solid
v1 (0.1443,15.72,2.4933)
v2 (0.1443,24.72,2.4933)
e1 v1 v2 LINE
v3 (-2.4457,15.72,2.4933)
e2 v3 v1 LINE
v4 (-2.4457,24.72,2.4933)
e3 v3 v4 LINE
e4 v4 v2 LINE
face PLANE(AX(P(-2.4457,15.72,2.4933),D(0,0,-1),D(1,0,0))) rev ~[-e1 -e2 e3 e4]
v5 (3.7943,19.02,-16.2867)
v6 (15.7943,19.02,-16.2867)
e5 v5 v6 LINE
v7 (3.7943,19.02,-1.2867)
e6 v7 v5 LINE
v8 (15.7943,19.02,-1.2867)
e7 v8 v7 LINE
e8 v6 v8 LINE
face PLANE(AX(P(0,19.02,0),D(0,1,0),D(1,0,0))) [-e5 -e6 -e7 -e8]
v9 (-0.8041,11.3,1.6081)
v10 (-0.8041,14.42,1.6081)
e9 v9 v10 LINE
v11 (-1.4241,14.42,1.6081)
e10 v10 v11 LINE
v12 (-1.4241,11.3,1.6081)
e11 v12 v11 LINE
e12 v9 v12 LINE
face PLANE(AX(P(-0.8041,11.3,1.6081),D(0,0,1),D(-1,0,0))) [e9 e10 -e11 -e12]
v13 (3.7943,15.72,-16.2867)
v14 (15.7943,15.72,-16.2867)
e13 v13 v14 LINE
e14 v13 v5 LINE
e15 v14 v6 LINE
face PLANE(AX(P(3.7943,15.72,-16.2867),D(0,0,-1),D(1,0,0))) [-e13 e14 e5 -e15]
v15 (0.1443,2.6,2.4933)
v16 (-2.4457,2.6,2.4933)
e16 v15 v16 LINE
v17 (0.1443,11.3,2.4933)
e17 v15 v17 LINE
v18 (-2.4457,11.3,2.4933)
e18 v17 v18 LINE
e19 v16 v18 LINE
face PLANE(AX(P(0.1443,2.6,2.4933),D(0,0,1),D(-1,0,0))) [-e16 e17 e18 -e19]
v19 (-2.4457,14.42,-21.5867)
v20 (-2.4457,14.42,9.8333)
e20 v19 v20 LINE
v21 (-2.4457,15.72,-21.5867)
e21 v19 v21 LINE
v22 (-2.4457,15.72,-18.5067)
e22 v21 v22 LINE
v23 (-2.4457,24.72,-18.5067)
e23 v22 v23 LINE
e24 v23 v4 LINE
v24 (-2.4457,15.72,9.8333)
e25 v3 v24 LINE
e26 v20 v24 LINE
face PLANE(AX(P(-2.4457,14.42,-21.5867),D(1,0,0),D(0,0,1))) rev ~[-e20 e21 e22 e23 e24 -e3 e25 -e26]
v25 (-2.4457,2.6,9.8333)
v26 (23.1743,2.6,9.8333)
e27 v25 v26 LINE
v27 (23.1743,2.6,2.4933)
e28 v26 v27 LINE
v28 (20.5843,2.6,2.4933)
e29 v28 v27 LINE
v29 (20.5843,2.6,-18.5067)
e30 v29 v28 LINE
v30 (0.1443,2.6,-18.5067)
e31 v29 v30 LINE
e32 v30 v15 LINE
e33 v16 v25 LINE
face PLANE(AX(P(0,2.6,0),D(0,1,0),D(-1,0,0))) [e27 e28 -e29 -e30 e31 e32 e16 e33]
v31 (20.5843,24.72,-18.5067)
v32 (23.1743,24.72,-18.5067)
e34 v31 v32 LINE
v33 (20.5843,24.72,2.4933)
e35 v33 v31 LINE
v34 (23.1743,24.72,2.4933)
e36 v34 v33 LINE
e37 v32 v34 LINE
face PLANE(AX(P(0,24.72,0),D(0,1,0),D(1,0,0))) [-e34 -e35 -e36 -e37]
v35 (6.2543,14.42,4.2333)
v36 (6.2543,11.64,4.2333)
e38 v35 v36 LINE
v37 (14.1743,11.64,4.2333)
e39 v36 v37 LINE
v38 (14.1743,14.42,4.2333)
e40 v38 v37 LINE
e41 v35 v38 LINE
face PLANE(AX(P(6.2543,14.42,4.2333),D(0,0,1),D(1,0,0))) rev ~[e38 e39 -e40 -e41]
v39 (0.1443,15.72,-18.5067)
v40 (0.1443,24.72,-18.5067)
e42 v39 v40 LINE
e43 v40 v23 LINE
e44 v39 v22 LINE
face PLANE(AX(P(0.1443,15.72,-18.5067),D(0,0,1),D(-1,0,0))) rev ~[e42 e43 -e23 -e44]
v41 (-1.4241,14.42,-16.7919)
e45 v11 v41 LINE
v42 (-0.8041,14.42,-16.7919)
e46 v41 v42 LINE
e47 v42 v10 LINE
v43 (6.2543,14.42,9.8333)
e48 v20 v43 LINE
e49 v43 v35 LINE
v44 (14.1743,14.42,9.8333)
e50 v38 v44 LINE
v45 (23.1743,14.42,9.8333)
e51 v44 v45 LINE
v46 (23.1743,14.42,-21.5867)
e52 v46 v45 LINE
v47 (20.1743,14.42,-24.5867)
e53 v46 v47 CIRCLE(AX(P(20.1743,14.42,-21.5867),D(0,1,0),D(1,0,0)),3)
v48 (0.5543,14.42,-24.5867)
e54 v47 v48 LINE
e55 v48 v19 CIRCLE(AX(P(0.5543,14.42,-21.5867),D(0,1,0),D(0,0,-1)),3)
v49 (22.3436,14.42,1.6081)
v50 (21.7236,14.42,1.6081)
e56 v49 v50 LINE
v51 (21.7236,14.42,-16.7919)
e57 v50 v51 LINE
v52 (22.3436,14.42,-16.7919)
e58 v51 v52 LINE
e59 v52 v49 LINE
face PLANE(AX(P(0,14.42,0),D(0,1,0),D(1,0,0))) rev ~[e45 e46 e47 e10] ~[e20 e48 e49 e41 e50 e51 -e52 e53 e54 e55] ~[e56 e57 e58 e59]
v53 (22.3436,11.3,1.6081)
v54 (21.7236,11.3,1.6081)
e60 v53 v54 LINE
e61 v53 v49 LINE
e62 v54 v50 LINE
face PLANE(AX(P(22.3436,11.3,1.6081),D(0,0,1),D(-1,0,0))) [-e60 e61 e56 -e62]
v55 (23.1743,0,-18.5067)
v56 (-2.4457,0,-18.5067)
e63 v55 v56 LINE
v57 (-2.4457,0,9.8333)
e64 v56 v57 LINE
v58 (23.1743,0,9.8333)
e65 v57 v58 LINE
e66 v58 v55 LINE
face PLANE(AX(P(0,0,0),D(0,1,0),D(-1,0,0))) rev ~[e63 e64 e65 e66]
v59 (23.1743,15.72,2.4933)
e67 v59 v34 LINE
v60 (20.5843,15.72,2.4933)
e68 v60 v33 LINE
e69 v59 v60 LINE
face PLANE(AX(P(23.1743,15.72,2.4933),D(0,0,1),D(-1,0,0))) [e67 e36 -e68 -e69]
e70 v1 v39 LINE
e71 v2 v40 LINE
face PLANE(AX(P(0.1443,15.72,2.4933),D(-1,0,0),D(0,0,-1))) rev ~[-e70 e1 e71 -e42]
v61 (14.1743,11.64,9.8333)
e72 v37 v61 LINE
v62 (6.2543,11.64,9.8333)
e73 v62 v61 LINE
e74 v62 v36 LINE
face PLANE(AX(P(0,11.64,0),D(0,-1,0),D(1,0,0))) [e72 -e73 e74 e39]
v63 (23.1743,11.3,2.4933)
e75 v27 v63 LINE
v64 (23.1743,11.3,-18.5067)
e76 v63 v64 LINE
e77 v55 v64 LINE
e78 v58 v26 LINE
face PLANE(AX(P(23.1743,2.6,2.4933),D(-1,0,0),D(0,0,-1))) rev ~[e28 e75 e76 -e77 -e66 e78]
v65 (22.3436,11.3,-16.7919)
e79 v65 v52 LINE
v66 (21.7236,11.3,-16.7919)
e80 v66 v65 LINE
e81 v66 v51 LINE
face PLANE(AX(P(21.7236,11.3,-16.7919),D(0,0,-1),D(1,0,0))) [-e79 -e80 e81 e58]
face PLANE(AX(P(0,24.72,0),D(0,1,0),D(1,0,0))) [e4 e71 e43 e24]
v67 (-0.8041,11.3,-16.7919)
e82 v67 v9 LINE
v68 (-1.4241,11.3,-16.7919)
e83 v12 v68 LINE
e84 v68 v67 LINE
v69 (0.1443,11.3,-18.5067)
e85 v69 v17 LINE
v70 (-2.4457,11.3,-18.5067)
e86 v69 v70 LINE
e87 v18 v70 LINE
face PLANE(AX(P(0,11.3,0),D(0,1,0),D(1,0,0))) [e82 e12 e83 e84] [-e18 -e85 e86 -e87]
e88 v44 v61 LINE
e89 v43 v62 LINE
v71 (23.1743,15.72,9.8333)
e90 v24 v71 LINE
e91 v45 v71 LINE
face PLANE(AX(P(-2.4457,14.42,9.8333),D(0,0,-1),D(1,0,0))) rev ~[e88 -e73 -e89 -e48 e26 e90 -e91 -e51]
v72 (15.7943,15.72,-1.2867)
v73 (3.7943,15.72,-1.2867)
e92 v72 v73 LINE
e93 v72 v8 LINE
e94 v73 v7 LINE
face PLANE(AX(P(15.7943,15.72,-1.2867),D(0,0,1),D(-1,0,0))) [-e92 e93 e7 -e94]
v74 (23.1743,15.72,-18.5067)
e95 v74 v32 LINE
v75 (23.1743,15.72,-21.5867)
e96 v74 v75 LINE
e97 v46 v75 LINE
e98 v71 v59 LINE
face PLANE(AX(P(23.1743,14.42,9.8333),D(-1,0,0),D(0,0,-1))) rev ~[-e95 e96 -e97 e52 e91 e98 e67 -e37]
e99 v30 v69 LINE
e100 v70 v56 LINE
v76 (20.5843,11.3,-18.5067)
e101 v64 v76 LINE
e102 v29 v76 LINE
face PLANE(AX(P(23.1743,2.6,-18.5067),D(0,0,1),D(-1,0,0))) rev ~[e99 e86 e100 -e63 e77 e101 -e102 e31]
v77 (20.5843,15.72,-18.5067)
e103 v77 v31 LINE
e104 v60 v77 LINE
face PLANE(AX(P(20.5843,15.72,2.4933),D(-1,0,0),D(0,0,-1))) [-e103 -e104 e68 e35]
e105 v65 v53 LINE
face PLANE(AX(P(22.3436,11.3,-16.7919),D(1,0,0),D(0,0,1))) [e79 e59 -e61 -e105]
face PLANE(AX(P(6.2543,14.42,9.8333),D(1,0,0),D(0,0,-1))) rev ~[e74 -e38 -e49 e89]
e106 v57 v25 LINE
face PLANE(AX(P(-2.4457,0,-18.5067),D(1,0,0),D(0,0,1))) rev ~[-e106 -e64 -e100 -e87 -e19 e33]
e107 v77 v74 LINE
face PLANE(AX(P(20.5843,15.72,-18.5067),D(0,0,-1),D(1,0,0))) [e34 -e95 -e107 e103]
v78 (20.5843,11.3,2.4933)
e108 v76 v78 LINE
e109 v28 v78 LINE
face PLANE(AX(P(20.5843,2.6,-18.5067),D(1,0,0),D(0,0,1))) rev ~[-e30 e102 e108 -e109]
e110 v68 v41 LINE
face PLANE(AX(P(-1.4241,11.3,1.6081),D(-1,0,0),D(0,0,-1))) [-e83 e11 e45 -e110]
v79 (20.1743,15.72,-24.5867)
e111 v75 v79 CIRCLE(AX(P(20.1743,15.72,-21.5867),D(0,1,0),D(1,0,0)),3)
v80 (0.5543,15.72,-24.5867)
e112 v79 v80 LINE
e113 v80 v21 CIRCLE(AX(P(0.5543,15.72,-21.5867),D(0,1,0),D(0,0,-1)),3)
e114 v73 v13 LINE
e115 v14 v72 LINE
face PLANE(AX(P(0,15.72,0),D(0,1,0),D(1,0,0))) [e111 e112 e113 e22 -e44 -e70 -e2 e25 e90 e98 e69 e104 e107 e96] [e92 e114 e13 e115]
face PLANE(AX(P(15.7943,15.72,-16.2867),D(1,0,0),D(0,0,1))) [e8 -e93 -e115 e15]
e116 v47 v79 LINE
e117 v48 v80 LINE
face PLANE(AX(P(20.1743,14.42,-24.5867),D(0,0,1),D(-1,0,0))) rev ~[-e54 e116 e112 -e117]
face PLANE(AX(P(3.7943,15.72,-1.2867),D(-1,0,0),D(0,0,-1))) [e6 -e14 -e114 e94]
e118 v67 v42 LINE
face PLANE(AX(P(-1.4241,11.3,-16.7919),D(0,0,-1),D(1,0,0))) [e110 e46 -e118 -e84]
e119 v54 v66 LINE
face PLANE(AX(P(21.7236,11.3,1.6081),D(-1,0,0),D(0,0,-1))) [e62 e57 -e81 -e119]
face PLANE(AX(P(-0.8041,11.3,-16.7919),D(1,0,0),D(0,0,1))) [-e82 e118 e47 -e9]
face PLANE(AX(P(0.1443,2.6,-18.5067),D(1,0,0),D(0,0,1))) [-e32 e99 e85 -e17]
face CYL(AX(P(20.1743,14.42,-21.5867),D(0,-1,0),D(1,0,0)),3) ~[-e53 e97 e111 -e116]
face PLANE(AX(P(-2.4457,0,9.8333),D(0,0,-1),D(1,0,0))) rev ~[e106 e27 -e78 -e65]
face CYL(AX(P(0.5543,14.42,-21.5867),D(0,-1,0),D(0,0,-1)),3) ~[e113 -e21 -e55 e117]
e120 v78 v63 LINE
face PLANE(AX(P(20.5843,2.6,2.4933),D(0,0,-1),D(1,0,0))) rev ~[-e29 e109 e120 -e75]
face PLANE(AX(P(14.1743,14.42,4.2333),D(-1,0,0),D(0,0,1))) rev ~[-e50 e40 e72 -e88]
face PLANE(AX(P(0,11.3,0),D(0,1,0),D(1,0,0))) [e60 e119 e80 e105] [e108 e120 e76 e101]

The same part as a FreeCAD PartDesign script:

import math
import FreeCAD as App
import Part
import Sketcher

V = App.Vector

doc = App.newDocument("Part")
params = doc.addObject("Spreadsheet::Sheet", "Params")
for row, (alias, value) in enumerate([
    ("sketch1_width", "25.62 mm"),
    ("sketch1_height", "28.34 mm"),
    ("pad1_length", "2.6 mm"),
    ("sketch2_height", "21 mm"),
    ("sketch2_width", "2.59 mm"),
    ("pad2_length", "8.7 mm"),
    ("sketch3_height", "21 mm"),
    ("sketch3_width", "2.59 mm"),
    ("pad3_length", "8.7 mm"),
    ("sketch4_height", "18.4 mm"),
    ("sketch4_width", "0.62 mm"),
    ("pad4_length", "3.12 mm"),
    ("sketch5_radius", "3 mm"),
    ("sketch5_width", "25.62 mm"),
    ("pad5_length", "1.3 mm"),
    ("sketch6_height", "21 mm"),
    ("sketch6_width", "2.59 mm"),
    ("pad6_length", "9 mm"),
    ("sketch7_width", "12 mm"),
    ("sketch7_height", "15 mm"),
    ("pad7_length", "3.3 mm"),
    ("sketch8_height", "5.6 mm"),
    ("sketch8_width", "7.92 mm"),
    ("pad8_length", "2.78 mm"),
], start=1):
    params.set(f"A{row}", alias)
    params.set(f"B{row}", "=" + value)
    params.setAlias(f"B{row}", alias)

body = doc.addObject("PartDesign::Body", "Body")

# Sketch on XZ plane
sketch1 = body.newObject("Sketcher::SketchObject", "Sketch")
sketch1.AttachmentSupport = (doc.getObject("XZ_Plane"), [""])
sketch1.MapMode = "FlatFace"
sketch1.addGeometry([
    Part.LineSegment(V(-2.4457, -18.5067, 0), V(-2.4457, 9.8333, 0)),
    Part.LineSegment(V(-2.4457, 9.8333, 0), V(23.1743, 9.8333, 0)),
    Part.LineSegment(V(23.1743, 9.8333, 0), V(23.1743, -18.5067, 0)),
    Part.LineSegment(V(23.1743, -18.5067, 0), V(-2.4457, -18.5067, 0)),
], False)
sketch1.addConstraint([
    Sketcher.Constraint("Coincident", 0, 2, 1, 1),
    Sketcher.Constraint("Coincident", 1, 2, 2, 1),
    Sketcher.Constraint("Coincident", 2, 2, 3, 1),
    Sketcher.Constraint("Coincident", 3, 2, 0, 1),
    Sketcher.Constraint("Vertical", 0),
    Sketcher.Constraint("Horizontal", 1),
    Sketcher.Constraint("Vertical", 2),
    Sketcher.Constraint("Horizontal", 3),
    Sketcher.Constraint("DistanceX", 1, 1, 1, 2, 25.62),
    Sketcher.Constraint("DistanceY", 0, 1, 0, 2, 28.34),
    Sketcher.Constraint("DistanceX", 0, 2, -1, 1, 2.4457),
    Sketcher.Constraint("DistanceY", -1, 1, 0, 2, 9.8333),
])
sketch1.setExpression("Constraints[8]", "Params.sketch1_width")
sketch1.setExpression("Constraints[9]", "Params.sketch1_height")
pad1 = body.newObject("PartDesign::Pad", "Pad")
pad1.Profile = sketch1
pad1.setExpression("Length", "Params.pad1_length")
pad1.Reversed = True

# Sketch on XZ plane
sketch2 = body.newObject("Sketcher::SketchObject", "Sketch001")
sketch2.AttachmentSupport = (doc.getObject("XZ_Plane"), [""])
sketch2.MapMode = "FlatFace"
sketch2.AttachmentOffset = App.Placement(V(0, 0, -2.6), App.Rotation())
sketch2.addGeometry([
    Part.LineSegment(V(0.1443, 2.4933, 0), V(0.1443, -18.5067, 0)),
    Part.LineSegment(V(0.1443, -18.5067, 0), V(-2.4457, -18.5067, 0)),
    Part.LineSegment(V(-2.4457, -18.5067, 0), V(-2.4457, 2.4933, 0)),
    Part.LineSegment(V(-2.4457, 2.4933, 0), V(0.1443, 2.4933, 0)),
], False)
sketch2.addConstraint([
    Sketcher.Constraint("Coincident", 0, 2, 1, 1),
    Sketcher.Constraint("Coincident", 1, 2, 2, 1),
    Sketcher.Constraint("Coincident", 2, 2, 3, 1),
    Sketcher.Constraint("Coincident", 3, 2, 0, 1),
    Sketcher.Constraint("Vertical", 0),
    Sketcher.Constraint("Horizontal", 1),
    Sketcher.Constraint("Vertical", 2),
    Sketcher.Constraint("Horizontal", 3),
    Sketcher.Constraint("DistanceY", 0, 2, 0, 1, 21.0),
    Sketcher.Constraint("DistanceX", 1, 2, 1, 1, 2.59),
    Sketcher.Constraint("DistanceX", -1, 1, 0, 2, 0.1443),
    Sketcher.Constraint("DistanceY", 0, 2, -1, 1, 18.5067),
])
sketch2.setExpression("Constraints[8]", "Params.sketch2_height")
sketch2.setExpression("Constraints[9]", "Params.sketch2_width")
pad2 = body.newObject("PartDesign::Pad", "Pad001")
pad2.Profile = sketch2
pad2.setExpression("Length", "Params.pad2_length")
pad2.Reversed = True

# Sketch on XZ plane
sketch3 = body.newObject("Sketcher::SketchObject", "Sketch002")
sketch3.AttachmentSupport = (doc.getObject("XZ_Plane"), [""])
sketch3.MapMode = "FlatFace"
sketch3.AttachmentOffset = App.Placement(V(0, 0, -2.6), App.Rotation())
sketch3.addGeometry([
    Part.LineSegment(V(23.1743, 2.4933, 0), V(23.1743, -18.5067, 0)),
    Part.LineSegment(V(23.1743, -18.5067, 0), V(20.5843, -18.5067, 0)),
    Part.LineSegment(V(20.5843, -18.5067, 0), V(20.5843, 2.4933, 0)),
    Part.LineSegment(V(20.5843, 2.4933, 0), V(23.1743, 2.4933, 0)),
], False)
sketch3.addConstraint([
    Sketcher.Constraint("Coincident", 0, 2, 1, 1),
    Sketcher.Constraint("Coincident", 1, 2, 2, 1),
    Sketcher.Constraint("Coincident", 2, 2, 3, 1),
    Sketcher.Constraint("Coincident", 3, 2, 0, 1),
    Sketcher.Constraint("Vertical", 0),
    Sketcher.Constraint("Horizontal", 1),
    Sketcher.Constraint("Vertical", 2),
    Sketcher.Constraint("Horizontal", 3),
    Sketcher.Constraint("DistanceY", 0, 2, 0, 1, 21.0),
    Sketcher.Constraint("DistanceX", 1, 2, 1, 1, 2.59),
    Sketcher.Constraint("DistanceX", -1, 1, 0, 2, 23.1743),
    Sketcher.Constraint("DistanceY", 0, 2, -1, 1, 18.5067),
])
sketch3.setExpression("Constraints[8]", "Params.sketch3_height")
sketch3.setExpression("Constraints[9]", "Params.sketch3_width")
pad3 = body.newObject("PartDesign::Pad", "Pad002")
pad3.Profile = sketch3
pad3.setExpression("Length", "Params.pad3_length")
pad3.Reversed = True

# Sketch on XZ plane
sketch4 = body.newObject("Sketcher::SketchObject", "Sketch003")
sketch4.AttachmentSupport = (doc.getObject("XZ_Plane"), [""])
sketch4.MapMode = "FlatFace"
sketch4.AttachmentOffset = App.Placement(V(0, 0, -11.3), App.Rotation())
sketch4.addGeometry([
    Part.LineSegment(V(-0.8041, -16.7919, 0), V(-1.4241, -16.7919, 0)),  # 0
    Part.LineSegment(V(-1.4241, -16.7919, 0), V(-1.4241, 1.6081, 0)),  # 1
    Part.LineSegment(V(-1.4241, 1.6081, 0), V(-0.8041, 1.6081, 0)),  # 2
    Part.LineSegment(V(-0.8041, 1.6081, 0), V(-0.8041, -16.7919, 0)),  # 3
    Part.LineSegment(V(22.3436, -16.7919, 0), V(21.7236, -16.7919, 0)),  # 4
    Part.LineSegment(V(21.7236, -16.7919, 0), V(21.7236, 1.6081, 0)),  # 5
    Part.LineSegment(V(21.7236, 1.6081, 0), V(22.3436, 1.6081, 0)),  # 6
    Part.LineSegment(V(22.3436, 1.6081, 0), V(22.3436, -16.7919, 0)),  # 7
], False)
sketch4.addConstraint([
    Sketcher.Constraint("Coincident", 0, 2, 1, 1),
    Sketcher.Constraint("Coincident", 1, 2, 2, 1),
    Sketcher.Constraint("Coincident", 2, 2, 3, 1),
    Sketcher.Constraint("Coincident", 3, 2, 0, 1),
    Sketcher.Constraint("Coincident", 4, 2, 5, 1),
    Sketcher.Constraint("Coincident", 5, 2, 6, 1),
    Sketcher.Constraint("Coincident", 6, 2, 7, 1),
    Sketcher.Constraint("Coincident", 7, 2, 4, 1),
    Sketcher.Constraint("Horizontal", 0),
    Sketcher.Constraint("Vertical", 1),
    Sketcher.Constraint("Horizontal", 2),
    Sketcher.Constraint("Vertical", 3),
    Sketcher.Constraint("Horizontal", 4),
    Sketcher.Constraint("Vertical", 5),
    Sketcher.Constraint("Horizontal", 6),
    Sketcher.Constraint("Vertical", 7),
    Sketcher.Constraint("Horizontal", 3, 2, 4, 2),
    Sketcher.Constraint("Horizontal", 2, 2, 5, 2),
    Sketcher.Constraint("Equal", 2, 4),
    Sketcher.Constraint("DistanceY", 1, 1, 1, 2, 18.4),
    Sketcher.Constraint("DistanceX", 0, 2, 0, 1, 0.62),
    Sketcher.Constraint("DistanceX", 0, 2, -1, 1, 1.424),
    Sketcher.Constraint("DistanceY", 0, 2, -1, 1, 16.792),
    Sketcher.Constraint("DistanceX", -1, 1, 4, 2, 21.7236),
])
sketch4.setExpression("Constraints[19]", "Params.sketch4_height")
sketch4.setExpression("Constraints[20]", "Params.sketch4_width")
pad4 = body.newObject("PartDesign::Pad", "Pad003")
pad4.Profile = sketch4
pad4.setExpression("Length", "Params.pad4_length")
pad4.Reversed = True

# Sketch on XZ plane
sketch5 = body.newObject("Sketcher::SketchObject", "Sketch004")
sketch5.AttachmentSupport = (doc.getObject("XZ_Plane"), [""])
sketch5.MapMode = "FlatFace"
sketch5.AttachmentOffset = App.Placement(V(0, 0, -14.42), App.Rotation())
sketch5.addGeometry([
    Part.LineSegment(V(-2.4457, -21.5867, 0), V(-2.4457, 9.8333, 0)),  # 0
    Part.LineSegment(V(-2.4457, 9.8333, 0), V(23.1743, 9.8333, 0)),  # 1
    Part.LineSegment(V(23.1743, 9.8333, 0), V(23.1743, -21.5867, 0)),  # 2
    Part.ArcOfCircle(Part.Circle(V(20.1743, -21.5867, 0), V(0, 0, 1), 3), math.radians(-90), math.radians(0)),  # 3
    Part.LineSegment(V(20.1743, -24.5867, 0), V(0.5543, -24.5867, 0)),  # 4
    Part.ArcOfCircle(Part.Circle(V(0.5543, -21.5867, 0), V(0, 0, 1), 3), math.radians(180), math.radians(270)),  # 5
], False)
sketch5.addConstraint([
    Sketcher.Constraint("Coincident", 0, 2, 1, 1),
    Sketcher.Constraint("Coincident", 1, 2, 2, 1),
    Sketcher.Constraint("Tangent", 2, 2, 3, 2),
    Sketcher.Constraint("Tangent", 3, 1, 4, 1),
    Sketcher.Constraint("Tangent", 4, 2, 5, 2),
    Sketcher.Constraint("Tangent", 5, 1, 0, 1),
    Sketcher.Constraint("Vertical", 0),
    Sketcher.Constraint("Horizontal", 1),
    Sketcher.Constraint("Vertical", 2),
    Sketcher.Constraint("Horizontal", 4),
    Sketcher.Constraint("Equal", 3, 5),
    Sketcher.Constraint("Radius", 3, 3.0),
    Sketcher.Constraint("DistanceY", 3, 1, 1, 2, 34.42),
    Sketcher.Constraint("DistanceX", 1, 1, 1, 2, 25.62),
    Sketcher.Constraint("DistanceX", -1, 1, 3, 3, 20.1743),
    Sketcher.Constraint("DistanceY", 3, 3, -1, 1, 21.5867),
])
sketch5.setExpression("Constraints[11]", "Params.sketch5_radius")
sketch5.setExpression("Constraints[13]", "Params.sketch5_width")
pad5 = body.newObject("PartDesign::Pad", "Pad004")
pad5.Profile = sketch5
pad5.setExpression("Length", "Params.pad5_length")
pad5.Reversed = True

# Sketch on XZ plane
sketch6 = body.newObject("Sketcher::SketchObject", "Sketch005")
sketch6.AttachmentSupport = (doc.getObject("XZ_Plane"), [""])
sketch6.MapMode = "FlatFace"
sketch6.AttachmentOffset = App.Placement(V(0, 0, -15.72), App.Rotation())
sketch6.addGeometry([
    Part.LineSegment(V(-2.4457, -18.5067, 0), V(-2.4457, 2.4933, 0)),  # 0
    Part.LineSegment(V(-2.4457, 2.4933, 0), V(0.1443, 2.4933, 0)),  # 1
    Part.LineSegment(V(0.1443, 2.4933, 0), V(0.1443, -18.5067, 0)),  # 2
    Part.LineSegment(V(0.1443, -18.5067, 0), V(-2.4457, -18.5067, 0)),  # 3
    Part.LineSegment(V(23.1743, -18.5067, 0), V(20.5843, -18.5067, 0)),  # 4
    Part.LineSegment(V(20.5843, -18.5067, 0), V(20.5843, 2.4933, 0)),  # 5
    Part.LineSegment(V(20.5843, 2.4933, 0), V(23.1743, 2.4933, 0)),  # 6
    Part.LineSegment(V(23.1743, 2.4933, 0), V(23.1743, -18.5067, 0)),  # 7
], False)
sketch6.addConstraint([
    Sketcher.Constraint("Coincident", 0, 2, 1, 1),
    Sketcher.Constraint("Coincident", 1, 2, 2, 1),
    Sketcher.Constraint("Coincident", 2, 2, 3, 1),
    Sketcher.Constraint("Coincident", 3, 2, 0, 1),
    Sketcher.Constraint("Coincident", 4, 2, 5, 1),
    Sketcher.Constraint("Coincident", 5, 2, 6, 1),
    Sketcher.Constraint("Coincident", 6, 2, 7, 1),
    Sketcher.Constraint("Coincident", 7, 2, 4, 1),
    Sketcher.Constraint("Vertical", 0),
    Sketcher.Constraint("Horizontal", 1),
    Sketcher.Constraint("Vertical", 2),
    Sketcher.Constraint("Horizontal", 3),
    Sketcher.Constraint("Horizontal", 4),
    Sketcher.Constraint("Vertical", 5),
    Sketcher.Constraint("Horizontal", 6),
    Sketcher.Constraint("Vertical", 7),
    Sketcher.Constraint("Horizontal", 3, 2, 4, 2),
    Sketcher.Constraint("Horizontal", 1, 2, 5, 2),
    Sketcher.Constraint("Equal", 3, 4),
    Sketcher.Constraint("DistanceY", 0, 1, 0, 2, 21.0),
    Sketcher.Constraint("DistanceX", 1, 1, 1, 2, 2.59),
    Sketcher.Constraint("DistanceX", 2, 2, 4, 2, 20.44),
    Sketcher.Constraint("DistanceX", 0, 2, -1, 1, 2.4457),
    Sketcher.Constraint("DistanceY", -1, 1, 0, 2, 2.4933),
])
sketch6.setExpression("Constraints[19]", "Params.sketch6_height")
sketch6.setExpression("Constraints[20]", "Params.sketch6_width")
pad6 = body.newObject("PartDesign::Pad", "Pad005")
pad6.Profile = sketch6
pad6.setExpression("Length", "Params.pad6_length")
pad6.Reversed = True

# Sketch on XZ plane
sketch7 = body.newObject("Sketcher::SketchObject", "Sketch006")
sketch7.AttachmentSupport = (doc.getObject("XZ_Plane"), [""])
sketch7.MapMode = "FlatFace"
sketch7.AttachmentOffset = App.Placement(V(0, 0, -15.72), App.Rotation())
sketch7.addGeometry([
    Part.LineSegment(V(15.7943, -16.2867, 0), V(3.7943, -16.2867, 0)),
    Part.LineSegment(V(3.7943, -16.2867, 0), V(3.7943, -1.2867, 0)),
    Part.LineSegment(V(3.7943, -1.2867, 0), V(15.7943, -1.2867, 0)),
    Part.LineSegment(V(15.7943, -1.2867, 0), V(15.7943, -16.2867, 0)),
], False)
sketch7.addConstraint([
    Sketcher.Constraint("Coincident", 0, 2, 1, 1),
    Sketcher.Constraint("Coincident", 1, 2, 2, 1),
    Sketcher.Constraint("Coincident", 2, 2, 3, 1),
    Sketcher.Constraint("Coincident", 3, 2, 0, 1),
    Sketcher.Constraint("Horizontal", 0),
    Sketcher.Constraint("Vertical", 1),
    Sketcher.Constraint("Horizontal", 2),
    Sketcher.Constraint("Vertical", 3),
    Sketcher.Constraint("DistanceX", 0, 2, 0, 1, 12.0),
    Sketcher.Constraint("DistanceY", 1, 1, 1, 2, 15.0),
    Sketcher.Constraint("DistanceX", -1, 1, 0, 2, 3.7943),
    Sketcher.Constraint("DistanceY", 0, 2, -1, 1, 16.2867),
])
sketch7.setExpression("Constraints[8]", "Params.sketch7_width")
sketch7.setExpression("Constraints[9]", "Params.sketch7_height")
pad7 = body.newObject("PartDesign::Pad", "Pad006")
pad7.Profile = sketch7
pad7.setExpression("Length", "Params.pad7_length")
pad7.Reversed = True

# Sketch on XZ plane
sketch8 = body.newObject("Sketcher::SketchObject", "Sketch007")
sketch8.AttachmentSupport = (doc.getObject("XZ_Plane"), [""])
sketch8.MapMode = "FlatFace"
sketch8.AttachmentOffset = App.Placement(V(0, 0, -14.42), App.Rotation())
sketch8.addGeometry([
    Part.LineSegment(V(14.1743, 9.8333, 0), V(6.2543, 9.8333, 0)),
    Part.LineSegment(V(6.2543, 9.8333, 0), V(6.2543, 4.2333, 0)),
    Part.LineSegment(V(6.2543, 4.2333, 0), V(14.1743, 4.2333, 0)),
    Part.LineSegment(V(14.1743, 4.2333, 0), V(14.1743, 9.8333, 0)),
], False)
sketch8.addConstraint([
    Sketcher.Constraint("Coincident", 0, 2, 1, 1),
    Sketcher.Constraint("Coincident", 1, 2, 2, 1),
    Sketcher.Constraint("Coincident", 2, 2, 3, 1),
    Sketcher.Constraint("Coincident", 3, 2, 0, 1),
    Sketcher.Constraint("Horizontal", 0),
    Sketcher.Constraint("Vertical", 1),
    Sketcher.Constraint("Horizontal", 2),
    Sketcher.Constraint("Vertical", 3),
    Sketcher.Constraint("DistanceY", 1, 2, 1, 1, 5.6),
    Sketcher.Constraint("DistanceX", 0, 2, 0, 1, 7.92),
    Sketcher.Constraint("DistanceX", -1, 1, 0, 2, 6.2543),
    Sketcher.Constraint("DistanceY", -1, 1, 0, 2, 9.8333),
])
sketch8.setExpression("Constraints[8]", "Params.sketch8_height")
sketch8.setExpression("Constraints[9]", "Params.sketch8_width")
pad8 = body.newObject("PartDesign::Pad", "Pad007")
pad8.Profile = sketch8
pad8.setExpression("Length", "Params.pad8_length")

doc.recompute()
